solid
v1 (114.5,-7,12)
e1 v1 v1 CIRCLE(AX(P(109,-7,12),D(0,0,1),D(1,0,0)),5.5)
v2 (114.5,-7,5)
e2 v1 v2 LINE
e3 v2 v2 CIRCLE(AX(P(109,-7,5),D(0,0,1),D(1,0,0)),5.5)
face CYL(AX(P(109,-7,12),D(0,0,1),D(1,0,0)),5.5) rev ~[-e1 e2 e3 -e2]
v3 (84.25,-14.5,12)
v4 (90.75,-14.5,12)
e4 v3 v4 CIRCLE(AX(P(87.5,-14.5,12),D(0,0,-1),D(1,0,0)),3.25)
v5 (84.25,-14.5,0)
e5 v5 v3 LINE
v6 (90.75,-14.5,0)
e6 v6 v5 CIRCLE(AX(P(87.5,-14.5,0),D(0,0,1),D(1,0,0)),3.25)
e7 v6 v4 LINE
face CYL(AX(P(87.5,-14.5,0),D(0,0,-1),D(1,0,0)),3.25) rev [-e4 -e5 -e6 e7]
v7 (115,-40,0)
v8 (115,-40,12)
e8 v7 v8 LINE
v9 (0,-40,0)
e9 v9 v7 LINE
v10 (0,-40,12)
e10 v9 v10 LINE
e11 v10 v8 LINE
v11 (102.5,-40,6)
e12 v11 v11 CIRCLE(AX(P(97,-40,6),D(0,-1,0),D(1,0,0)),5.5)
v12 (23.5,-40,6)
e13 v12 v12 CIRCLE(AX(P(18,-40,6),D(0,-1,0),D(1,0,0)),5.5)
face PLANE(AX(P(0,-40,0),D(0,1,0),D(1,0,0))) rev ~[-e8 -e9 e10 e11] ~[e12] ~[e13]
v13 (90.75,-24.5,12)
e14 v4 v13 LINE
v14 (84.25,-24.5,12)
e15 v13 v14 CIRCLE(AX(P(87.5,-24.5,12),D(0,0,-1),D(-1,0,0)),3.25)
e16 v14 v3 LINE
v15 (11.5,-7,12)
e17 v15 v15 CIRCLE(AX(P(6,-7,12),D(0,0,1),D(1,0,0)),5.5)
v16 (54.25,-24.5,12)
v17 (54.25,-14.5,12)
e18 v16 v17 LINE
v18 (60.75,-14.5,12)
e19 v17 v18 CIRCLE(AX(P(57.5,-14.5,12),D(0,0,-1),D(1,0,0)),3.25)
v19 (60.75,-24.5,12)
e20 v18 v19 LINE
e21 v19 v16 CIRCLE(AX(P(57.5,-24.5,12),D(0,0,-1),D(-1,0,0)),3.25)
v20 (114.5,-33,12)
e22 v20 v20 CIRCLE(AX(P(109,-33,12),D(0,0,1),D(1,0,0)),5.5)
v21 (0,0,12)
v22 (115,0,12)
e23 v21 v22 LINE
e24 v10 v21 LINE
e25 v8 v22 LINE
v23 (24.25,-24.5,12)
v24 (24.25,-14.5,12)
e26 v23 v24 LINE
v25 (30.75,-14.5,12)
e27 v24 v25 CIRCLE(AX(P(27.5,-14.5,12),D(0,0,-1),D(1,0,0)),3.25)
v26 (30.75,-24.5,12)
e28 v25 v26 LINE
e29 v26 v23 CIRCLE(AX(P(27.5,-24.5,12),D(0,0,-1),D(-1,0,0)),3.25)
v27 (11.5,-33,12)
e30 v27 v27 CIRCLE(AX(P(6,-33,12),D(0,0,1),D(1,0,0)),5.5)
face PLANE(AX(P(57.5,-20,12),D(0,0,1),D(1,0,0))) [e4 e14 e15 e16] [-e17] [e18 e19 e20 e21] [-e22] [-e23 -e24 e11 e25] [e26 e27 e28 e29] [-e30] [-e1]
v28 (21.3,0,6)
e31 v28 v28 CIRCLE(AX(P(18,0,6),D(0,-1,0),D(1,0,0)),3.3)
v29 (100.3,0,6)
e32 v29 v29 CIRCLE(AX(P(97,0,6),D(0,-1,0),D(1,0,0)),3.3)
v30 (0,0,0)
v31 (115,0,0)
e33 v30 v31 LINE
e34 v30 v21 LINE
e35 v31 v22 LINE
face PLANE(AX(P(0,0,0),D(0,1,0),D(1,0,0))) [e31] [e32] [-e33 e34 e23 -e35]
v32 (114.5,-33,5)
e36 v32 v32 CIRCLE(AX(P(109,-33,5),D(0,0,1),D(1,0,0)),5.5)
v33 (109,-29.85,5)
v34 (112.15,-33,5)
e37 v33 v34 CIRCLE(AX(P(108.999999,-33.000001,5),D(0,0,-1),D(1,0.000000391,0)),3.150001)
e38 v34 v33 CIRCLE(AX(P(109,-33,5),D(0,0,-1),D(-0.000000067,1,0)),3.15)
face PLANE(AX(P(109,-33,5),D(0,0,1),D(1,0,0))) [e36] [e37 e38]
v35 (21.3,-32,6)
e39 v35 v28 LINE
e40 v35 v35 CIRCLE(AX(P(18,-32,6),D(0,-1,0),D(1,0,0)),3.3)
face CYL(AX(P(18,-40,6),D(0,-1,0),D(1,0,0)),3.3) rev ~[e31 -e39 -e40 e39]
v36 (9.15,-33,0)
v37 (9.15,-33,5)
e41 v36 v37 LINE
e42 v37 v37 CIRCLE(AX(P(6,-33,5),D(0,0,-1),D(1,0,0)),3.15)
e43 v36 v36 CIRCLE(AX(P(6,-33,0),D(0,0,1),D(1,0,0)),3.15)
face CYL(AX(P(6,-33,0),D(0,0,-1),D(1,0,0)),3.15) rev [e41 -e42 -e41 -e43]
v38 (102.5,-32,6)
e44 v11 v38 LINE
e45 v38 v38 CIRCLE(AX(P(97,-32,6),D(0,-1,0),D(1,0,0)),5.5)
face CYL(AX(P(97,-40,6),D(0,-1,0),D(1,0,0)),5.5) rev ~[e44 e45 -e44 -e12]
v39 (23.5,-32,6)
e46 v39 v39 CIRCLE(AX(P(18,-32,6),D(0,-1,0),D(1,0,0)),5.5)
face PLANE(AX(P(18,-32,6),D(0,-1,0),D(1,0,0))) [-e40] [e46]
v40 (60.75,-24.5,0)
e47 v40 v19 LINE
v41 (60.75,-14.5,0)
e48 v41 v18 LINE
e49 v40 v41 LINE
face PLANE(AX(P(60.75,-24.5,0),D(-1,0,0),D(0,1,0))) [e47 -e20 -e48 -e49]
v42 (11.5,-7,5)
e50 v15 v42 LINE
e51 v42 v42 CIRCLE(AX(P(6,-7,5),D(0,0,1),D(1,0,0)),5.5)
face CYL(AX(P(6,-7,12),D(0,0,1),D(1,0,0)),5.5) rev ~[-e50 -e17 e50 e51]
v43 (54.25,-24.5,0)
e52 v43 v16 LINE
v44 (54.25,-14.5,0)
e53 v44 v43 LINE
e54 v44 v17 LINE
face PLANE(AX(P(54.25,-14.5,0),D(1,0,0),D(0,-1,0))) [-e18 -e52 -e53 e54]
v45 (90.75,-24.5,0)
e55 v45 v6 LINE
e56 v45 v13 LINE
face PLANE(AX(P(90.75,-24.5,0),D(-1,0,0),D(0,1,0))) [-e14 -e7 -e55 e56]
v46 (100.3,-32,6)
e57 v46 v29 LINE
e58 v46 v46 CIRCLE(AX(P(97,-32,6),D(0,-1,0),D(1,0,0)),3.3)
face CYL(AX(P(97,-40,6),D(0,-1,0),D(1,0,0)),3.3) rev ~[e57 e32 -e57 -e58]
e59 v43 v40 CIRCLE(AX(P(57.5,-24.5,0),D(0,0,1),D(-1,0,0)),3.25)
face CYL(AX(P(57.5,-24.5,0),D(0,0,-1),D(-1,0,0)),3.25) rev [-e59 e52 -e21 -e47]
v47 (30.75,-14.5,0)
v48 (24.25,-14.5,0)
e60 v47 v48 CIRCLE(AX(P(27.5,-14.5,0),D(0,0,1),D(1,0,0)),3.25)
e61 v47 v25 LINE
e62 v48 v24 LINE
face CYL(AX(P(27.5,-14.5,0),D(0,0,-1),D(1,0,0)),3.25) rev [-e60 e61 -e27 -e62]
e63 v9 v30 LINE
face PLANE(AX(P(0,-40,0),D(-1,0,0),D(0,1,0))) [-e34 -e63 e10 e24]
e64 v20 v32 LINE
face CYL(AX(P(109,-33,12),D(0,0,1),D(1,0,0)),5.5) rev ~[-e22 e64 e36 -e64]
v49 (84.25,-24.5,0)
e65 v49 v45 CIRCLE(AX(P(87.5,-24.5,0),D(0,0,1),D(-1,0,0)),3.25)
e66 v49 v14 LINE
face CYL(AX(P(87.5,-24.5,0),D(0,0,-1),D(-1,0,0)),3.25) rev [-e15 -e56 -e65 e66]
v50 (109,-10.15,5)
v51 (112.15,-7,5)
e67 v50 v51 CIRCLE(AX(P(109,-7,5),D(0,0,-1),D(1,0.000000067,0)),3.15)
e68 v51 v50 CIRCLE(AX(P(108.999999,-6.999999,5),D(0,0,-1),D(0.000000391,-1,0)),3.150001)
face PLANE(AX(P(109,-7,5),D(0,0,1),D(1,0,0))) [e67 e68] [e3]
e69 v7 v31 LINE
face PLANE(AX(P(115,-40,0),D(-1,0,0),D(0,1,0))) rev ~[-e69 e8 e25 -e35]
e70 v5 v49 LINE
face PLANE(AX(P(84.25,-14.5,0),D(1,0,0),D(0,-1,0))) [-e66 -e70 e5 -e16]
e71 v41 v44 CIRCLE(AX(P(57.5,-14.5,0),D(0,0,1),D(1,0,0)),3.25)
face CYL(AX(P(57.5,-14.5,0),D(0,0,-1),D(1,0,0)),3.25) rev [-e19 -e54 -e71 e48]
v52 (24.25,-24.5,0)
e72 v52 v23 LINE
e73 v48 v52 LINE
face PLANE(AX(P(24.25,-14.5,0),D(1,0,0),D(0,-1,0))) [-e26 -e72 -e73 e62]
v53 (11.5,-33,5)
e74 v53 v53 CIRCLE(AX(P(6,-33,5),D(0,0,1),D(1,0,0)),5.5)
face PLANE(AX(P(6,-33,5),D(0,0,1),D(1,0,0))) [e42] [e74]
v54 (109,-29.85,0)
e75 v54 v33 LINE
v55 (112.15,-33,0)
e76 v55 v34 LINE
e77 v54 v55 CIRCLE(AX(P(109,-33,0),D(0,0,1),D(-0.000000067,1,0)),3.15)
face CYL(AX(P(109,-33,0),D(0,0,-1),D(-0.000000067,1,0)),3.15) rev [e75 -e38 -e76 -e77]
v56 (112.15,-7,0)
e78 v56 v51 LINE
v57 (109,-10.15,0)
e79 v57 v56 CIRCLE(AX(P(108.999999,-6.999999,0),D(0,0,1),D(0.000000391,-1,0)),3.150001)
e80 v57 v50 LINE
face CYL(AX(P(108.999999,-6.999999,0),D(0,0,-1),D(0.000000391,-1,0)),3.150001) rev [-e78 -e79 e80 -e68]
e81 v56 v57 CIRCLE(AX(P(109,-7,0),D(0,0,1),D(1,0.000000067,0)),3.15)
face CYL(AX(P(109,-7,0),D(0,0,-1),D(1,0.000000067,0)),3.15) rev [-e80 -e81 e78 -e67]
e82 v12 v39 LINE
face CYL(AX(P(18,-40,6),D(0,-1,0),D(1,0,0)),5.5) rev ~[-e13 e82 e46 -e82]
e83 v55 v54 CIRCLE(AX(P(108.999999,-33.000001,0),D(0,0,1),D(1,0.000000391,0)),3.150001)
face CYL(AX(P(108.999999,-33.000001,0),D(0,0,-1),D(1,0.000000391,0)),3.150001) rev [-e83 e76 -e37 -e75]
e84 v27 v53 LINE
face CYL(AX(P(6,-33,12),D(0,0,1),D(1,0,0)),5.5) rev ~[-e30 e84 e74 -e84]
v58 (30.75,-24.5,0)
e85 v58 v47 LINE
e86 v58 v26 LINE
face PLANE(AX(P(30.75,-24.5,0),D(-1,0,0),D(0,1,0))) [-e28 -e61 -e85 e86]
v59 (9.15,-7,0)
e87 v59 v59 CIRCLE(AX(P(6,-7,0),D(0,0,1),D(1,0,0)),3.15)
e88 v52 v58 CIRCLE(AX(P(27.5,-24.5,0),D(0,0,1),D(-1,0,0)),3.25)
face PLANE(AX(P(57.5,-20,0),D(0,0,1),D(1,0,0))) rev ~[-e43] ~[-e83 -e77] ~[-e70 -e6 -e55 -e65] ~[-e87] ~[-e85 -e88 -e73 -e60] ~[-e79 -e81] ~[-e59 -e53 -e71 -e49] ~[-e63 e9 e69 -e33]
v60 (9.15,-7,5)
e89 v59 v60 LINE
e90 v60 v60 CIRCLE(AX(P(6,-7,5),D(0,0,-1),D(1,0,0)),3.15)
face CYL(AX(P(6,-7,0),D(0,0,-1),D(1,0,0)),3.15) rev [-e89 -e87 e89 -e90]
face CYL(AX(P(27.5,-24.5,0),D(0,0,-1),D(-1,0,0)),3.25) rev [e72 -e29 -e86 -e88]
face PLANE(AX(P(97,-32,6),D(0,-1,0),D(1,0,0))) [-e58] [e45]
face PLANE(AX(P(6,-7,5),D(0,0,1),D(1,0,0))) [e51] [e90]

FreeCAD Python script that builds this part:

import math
import FreeCAD as App
import Part
import Sketcher

V = App.Vector


def add_polygon(sketch, points):
    """Adds a closed chain of lines whose ends are joined by coincident constraints."""
    first, n = sketch.GeometryCount, len(points)
    for a, b in zip(points, points[1:] + points[:1]):
        sketch.addGeometry(Part.LineSegment(App.Vector(*a, 0), App.Vector(*b, 0)), False)
    for i in range(n):
        sketch.addConstraint(Sketcher.Constraint("Coincident", first + i, 2, first + (i + 1) % n, 1))

doc = App.newDocument("Part")
params = doc.addObject("Spreadsheet::Sheet", "Params")
for row, (alias, value) in enumerate([
    ("sketch1_width", "115 mm"),
    ("sketch1_height", "40 mm"),
    ("pad1_length", "12 mm"),
    ("sketch2_height", "10 mm"),
    ("sketch2_radius", "3.25 mm"),
    ("pocket1_length", "12.1 mm"),
    ("sketch3_diameter", "6.3 mm"),
    ("pocket2_length", "12.1 mm"),
    ("sketch4_diameter", "11 mm"),
    ("pocket3_length", "7 mm"),
    ("sketch5_diameter", "6.6 mm"),
    ("pocket4_length", "40.1 mm"),
    ("sketch6_diameter", "11 mm"),
    ("pocket5_length", "8 mm"),
], start=1):
    params.set(f"A{row}", alias)
    params.set(f"B{row}", "=" + value)
    params.setAlias(f"B{row}", alias)

body = doc.addObject("PartDesign::Body", "Body")

# Sketch on XY plane
sketch1 = doc.addObject("Sketcher::SketchObject", "Sketch")
body.addObject(sketch1)
sketch1.AttachmentSupport = (doc.XY_Plane, [""])
sketch1.MapMode = "FlatFace"
add_polygon(sketch1, [(0, 0), (0, -40), (115, -40), (115, 0)])  # lines 0-3
sketch1.addConstraint([
    Sketcher.Constraint("Vertical", 0),
    Sketcher.Constraint("Horizontal", 1),
    Sketcher.Constraint("Vertical", 2),
    Sketcher.Constraint("Horizontal", 3),
    Sketcher.Constraint("Coincident", 3, 2, -1, 1),
    Sketcher.Constraint("DistanceX", 1, 1, 1, 2, 115.0),
    Sketcher.Constraint("DistanceY", 0, 2, 0, 1, 40.0),
])
sketch1.setExpression("Constraints[9]", "Params.sketch1_width")
sketch1.setExpression("Constraints[10]", "Params.sketch1_height")
pad1 = doc.addObject("PartDesign::Pad", "Pad")
body.addObject(pad1)
pad1.Profile = sketch1
pad1.setExpression("Length", "Params.pad1_length")

# Sketch on XY plane
sketch2 = doc.addObject("Sketcher::SketchObject", "Sketch001")
body.addObject(sketch2)
sketch2.AttachmentSupport = (doc.XY_Plane, [""])
sketch2.MapMode = "FlatFace"
sketch2.addGeometry([
    Part.LineSegment(V(30.8, -24.5, 0), V(30.8, -14.5, 0)),  # 0
    Part.ArcOfCircle(Part.Circle(V(27.5, -14.5, 0), V(0, 0, 1), 3.2), math.radians(0), math.radians(180)),  # 1
    Part.LineSegment(V(24.2, -14.5, 0), V(24.2, -24.5, 0)),  # 2
    Part.ArcOfCircle(Part.Circle(V(27.5, -24.5, 0), V(0, 0, 1), 3.2), math.radians(180), math.radians(360)),  # 3
    Part.ArcOfCircle(Part.Circle(V(57.5, -14.5, 0), V(0, 0, 1), 3.2), math.radians(0), math.radians(180)),  # 4
    Part.LineSegment(V(54.2, -14.5, 0), V(54.2, -24.5, 0)),  # 5
    Part.ArcOfCircle(Part.Circle(V(57.5, -24.5, 0), V(0, 0, 1), 3.2), math.radians(180), math.radians(360)),  # 6
    Part.LineSegment(V(60.8, -24.5, 0), V(60.8, -14.5, 0)),  # 7
    Part.ArcOfCircle(Part.Circle(V(87.5, -14.5, 0), V(0, 0, 1), 3.2), math.radians(0), math.radians(180)),  # 8
    Part.LineSegment(V(84.2, -14.5, 0), V(84.2, -24.5, 0)),  # 9
    Part.ArcOfCircle(Part.Circle(V(87.5, -24.5, 0), V(0, 0, 1), 3.2), math.radians(180), math.radians(360)),  # 10
    Part.LineSegment(V(90.8, -24.5, 0), V(90.8, -14.5, 0)),  # 11
], False)
sketch2.addConstraint([
    Sketcher.Constraint("Tangent", 0, 2, 1, 1),
    Sketcher.Constraint("Tangent", 1, 2, 2, 1),
    Sketcher.Constraint("Tangent", 2, 2, 3, 1),
    Sketcher.Constraint("Tangent", 3, 2, 0, 1),
    Sketcher.Constraint("Tangent", 4, 2, 5, 1),
    Sketcher.Constraint("Tangent", 5, 2, 6, 1),
    Sketcher.Constraint("Tangent", 6, 2, 7, 1),
    Sketcher.Constraint("Tangent", 7, 2, 4, 1),
    Sketcher.Constraint("Tangent", 8, 2, 9, 1),
    Sketcher.Constraint("Tangent", 9, 2, 10, 1),
    Sketcher.Constraint("Tangent", 10, 2, 11, 1),
    Sketcher.Constraint("Tangent", 11, 2, 8, 1),
    Sketcher.Constraint("Vertical", 0),
    Sketcher.Constraint("Vertical", 2),
    Sketcher.Constraint("Vertical", 5),
    Sketcher.Constraint("Vertical", 7),
    Sketcher.Constraint("Vertical", 9),
    Sketcher.Constraint("Vertical", 11),
    Sketcher.Constraint("Equal", 3, 4),
    Sketcher.Constraint("Equal", 6, 8),
    Sketcher.Constraint("Horizontal", 1, 3, 4, 3),
    Sketcher.Constraint("Horizontal", 3, 3, 6, 3),
    Sketcher.Constraint("Horizontal", 4, 3, 8, 3),
    Sketcher.Constraint("Horizontal", 6, 3, 10, 3),
    Sketcher.Constraint("DistanceY", 0, 1, 0, 2, 10.0),
    Sketcher.Constraint("Radius", 1, 3.25),
    Sketcher.Constraint("DistanceX", 1, 3, 4, 3, 30.0),
    Sketcher.Constraint("DistanceX", 4, 3, 8, 3, 30.0),
    Sketcher.Constraint("DistanceX", -1, 1, 1, 3, 27.5),
    Sketcher.Constraint("DistanceY", 1, 3, -1, 1, 14.5),
])
sketch2.setExpression("Constraints[24]", "Params.sketch2_height")
sketch2.setExpression("Constraints[25]", "Params.sketch2_radius")
pocket1 = doc.addObject("PartDesign::Pocket", "Pocket")
body.addObject(pocket1)
pocket1.Profile = sketch2
pocket1.setExpression("Length", "Params.pocket1_length")
pocket1.Reversed = True

# Sketch on XY plane
sketch3 = doc.addObject("Sketcher::SketchObject", "Sketch002")
body.addObject(sketch3)
sketch3.AttachmentSupport = (doc.XY_Plane, [""])
sketch3.MapMode = "FlatFace"
sketch3.addGeometry([
    Part.Circle(V(6, -7, 0), V(0, 0, 1), 3.1),  # 0
    Part.Circle(V(6, -33, 0), V(0, 0, 1), 3.1),  # 1
    Part.ArcOfCircle(Part.Circle(V(109, -7, 0), V(0, 0, 1), 3.2), math.radians(-90), math.radians(0)),  # 2
    Part.ArcOfCircle(Part.Circle(V(109, -7, 0), V(0, 0, 1), 3.1), math.radians(0), math.radians(270)),  # 3
    Part.ArcOfCircle(Part.Circle(V(109, -33, 0), V(0, 0, 1), 3.2), math.radians(0), math.radians(90)),  # 4
    Part.ArcOfCircle(Part.Circle(V(109, -33, 0), V(0, 0, 1), 3.1), math.radians(90), math.radians(360)),  # 5
], False)
sketch3.addConstraint([
    Sketcher.Constraint("Tangent", 2, 1, 3, 2),
    Sketcher.Constraint("Coincident", 3, 1, 2, 2),
    Sketcher.Constraint("Tangent", 4, 1, 5, 2),
    Sketcher.Constraint("Coincident", 5, 1, 4, 2),
    Sketcher.Constraint("Equal", 0, 1),
    Sketcher.Constraint("Equal", 1, 2),
    Sketcher.Constraint("Equal", 3, 4),
    Sketcher.Constraint("Horizontal", 0, 3, 2, 3),
    Sketcher.Constraint("Horizontal", 1, 3, 4, 3),
    Sketcher.Constraint("Horizontal", 2, 3, 3, 1),
    Sketcher.Constraint("Horizontal", 5, 3, 4, 1),
    Sketcher.Constraint("Vertical", 0, 3, 1, 3),
    Sketcher.Constraint("Vertical", 3, 3, 4, 3),
    Sketcher.Constraint("Vertical", 5, 3, 2, 1),
    Sketcher.Constraint("Vertical", 2, 1, 5, 1),
    Sketcher.Constraint("Diameter", 0, 6.3),
    Sketcher.Constraint("DistanceX", -1, 1, 0, 3, 6.0),
    Sketcher.Constraint("DistanceY", 0, 3, -1, 1, 7.0),
    Sketcher.Constraint("DistanceY", 1, 3, -1, 1, 33.0),
    Sketcher.Constraint("DistanceX", -1, 1, 2, 3, 108.999999),
])
sketch3.setExpression("Constraints[15]", "Params.sketch3_diameter")
pocket2 = doc.addObject("PartDesign::Pocket", "Pocket001")
body.addObject(pocket2)
pocket2.Profile = sketch3
pocket2.setExpression("Length", "Params.pocket2_length")
pocket2.Reversed = True

# Sketch on XY plane
sketch4 = doc.addObject("Sketcher::SketchObject", "Sketch003")
body.addObject(sketch4)
sketch4.AttachmentSupport = (doc.XY_Plane, [""])
sketch4.MapMode = "FlatFace"
sketch4.AttachmentOffset = App.Placement(V(0, 0, 12), App.Rotation())
sketch4.addGeometry([
    Part.Circle(V(6, -7, 0), V(0, 0, 1), 6),
    Part.Circle(V(6, -33, 0), V(0, 0, 1), 6),
    Part.Circle(V(109, -7, 0), V(0, 0, 1), 6),
    Part.Circle(V(109, -33, 0), V(0, 0, 1), 6),
], False)
sketch4.addConstraint([
    Sketcher.Constraint("Equal", 0, 1),
    Sketcher.Constraint("Equal", 1, 2),
    Sketcher.Constraint("Equal", 2, 3),
    Sketcher.Constraint("Horizontal", 0, 3, 2, 3),
    Sketcher.Constraint("Horizontal", 1, 3, 3, 3),
    Sketcher.Constraint("Vertical", 0, 3, 1, 3),
    Sketcher.Constraint("Vertical", 2, 3, 3, 3),
    Sketcher.Constraint("Diameter", 0, 11.0),
    Sketcher.Constraint("DistanceX", -1, 1, 0, 3, 6.0),
    Sketcher.Constraint("DistanceY", 0, 3, -1, 1, 7.0),
    Sketcher.Constraint("DistanceY", 1, 3, -1, 1, 33.0),
    Sketcher.Constraint("DistanceX", -1, 1, 2, 3, 109.0),
])
sketch4.setExpression("Constraints[7]", "Params.sketch4_diameter")
pocket3 = doc.addObject("PartDesign::Pocket", "Pocket002")
body.addObject(pocket3)
pocket3.Profile = sketch4
pocket3.setExpression("Length", "Params.pocket3_length")

# Sketch on XZ plane
sketch5 = doc.addObject("Sketcher::SketchObject", "Sketch004")
body.addObject(sketch5)
sketch5.AttachmentSupport = (doc.XZ_Plane, [""])
sketch5.MapMode = "FlatFace"
sketch5.AttachmentOffset = App.Placement(V(0, 0, 40), App.Rotation())
sketch5.addGeometry([
    Part.Circle(V(97, 6, 0), V(0, 0, 1), 3.3),
    Part.Circle(V(18, 6, 0), V(0, 0, 1), 3.3),
], False)
sketch5.addConstraint([
    Sketcher.Constraint("Equal", 0, 1),
    Sketcher.Constraint("Horizontal", 0, 3, 1, 3),
    Sketcher.Constraint("Diameter", 0, 6.6),
    Sketcher.Constraint("DistanceX", -1, 1, 0, 3, 97.0),
    Sketcher.Constraint("DistanceY", -1, 1, 0, 3, 6.0),
    Sketcher.Constraint("DistanceX", -1, 1, 1, 3, 18.0),
])
sketch5.setExpression("Constraints[2]", "Params.sketch5_diameter")
pocket4 = doc.addObject("PartDesign::Pocket", "Pocket003")
body.addObject(pocket4)
pocket4.Profile = sketch5
pocket4.setExpression("Length", "Params.pocket4_length")

# Sketch on XZ plane
sketch6 = doc.addObject("Sketcher::SketchObject", "Sketch005")
body.addObject(sketch6)
sketch6.AttachmentSupport = (doc.XZ_Plane, [""])
sketch6.MapMode = "FlatFace"
sketch6.AttachmentOffset = App.Placement(V(0, 0, 40), App.Rotation())
sketch6.addGeometry([
    Part.Circle(V(18, 6, 0), V(0, 0, 1), 6),
    Part.Circle(V(97, 6, 0), V(0, 0, 1), 6),
], False)
sketch6.addConstraint([
    Sketcher.Constraint("Equal", 0, 1),
    Sketcher.Constraint("Horizontal", 0, 3, 1, 3),
    Sketcher.Constraint("Diameter", 0, 11.0),
    Sketcher.Constraint("DistanceX", -1, 1, 0, 3, 18.0),
    Sketcher.Constraint("DistanceY", -1, 1, 0, 3, 6.0),
    Sketcher.Constraint("DistanceX", -1, 1, 1, 3, 97.0),
])
sketch6.setExpression("Constraints[2]", "Params.sketch6_diameter")
pocket5 = doc.addObject("PartDesign::Pocket", "Pocket004")
body.addObject(pocket5)
pocket5.Profile = sketch6
pocket5.setExpression("Length", "Params.pocket5_length")

doc.recompute()
